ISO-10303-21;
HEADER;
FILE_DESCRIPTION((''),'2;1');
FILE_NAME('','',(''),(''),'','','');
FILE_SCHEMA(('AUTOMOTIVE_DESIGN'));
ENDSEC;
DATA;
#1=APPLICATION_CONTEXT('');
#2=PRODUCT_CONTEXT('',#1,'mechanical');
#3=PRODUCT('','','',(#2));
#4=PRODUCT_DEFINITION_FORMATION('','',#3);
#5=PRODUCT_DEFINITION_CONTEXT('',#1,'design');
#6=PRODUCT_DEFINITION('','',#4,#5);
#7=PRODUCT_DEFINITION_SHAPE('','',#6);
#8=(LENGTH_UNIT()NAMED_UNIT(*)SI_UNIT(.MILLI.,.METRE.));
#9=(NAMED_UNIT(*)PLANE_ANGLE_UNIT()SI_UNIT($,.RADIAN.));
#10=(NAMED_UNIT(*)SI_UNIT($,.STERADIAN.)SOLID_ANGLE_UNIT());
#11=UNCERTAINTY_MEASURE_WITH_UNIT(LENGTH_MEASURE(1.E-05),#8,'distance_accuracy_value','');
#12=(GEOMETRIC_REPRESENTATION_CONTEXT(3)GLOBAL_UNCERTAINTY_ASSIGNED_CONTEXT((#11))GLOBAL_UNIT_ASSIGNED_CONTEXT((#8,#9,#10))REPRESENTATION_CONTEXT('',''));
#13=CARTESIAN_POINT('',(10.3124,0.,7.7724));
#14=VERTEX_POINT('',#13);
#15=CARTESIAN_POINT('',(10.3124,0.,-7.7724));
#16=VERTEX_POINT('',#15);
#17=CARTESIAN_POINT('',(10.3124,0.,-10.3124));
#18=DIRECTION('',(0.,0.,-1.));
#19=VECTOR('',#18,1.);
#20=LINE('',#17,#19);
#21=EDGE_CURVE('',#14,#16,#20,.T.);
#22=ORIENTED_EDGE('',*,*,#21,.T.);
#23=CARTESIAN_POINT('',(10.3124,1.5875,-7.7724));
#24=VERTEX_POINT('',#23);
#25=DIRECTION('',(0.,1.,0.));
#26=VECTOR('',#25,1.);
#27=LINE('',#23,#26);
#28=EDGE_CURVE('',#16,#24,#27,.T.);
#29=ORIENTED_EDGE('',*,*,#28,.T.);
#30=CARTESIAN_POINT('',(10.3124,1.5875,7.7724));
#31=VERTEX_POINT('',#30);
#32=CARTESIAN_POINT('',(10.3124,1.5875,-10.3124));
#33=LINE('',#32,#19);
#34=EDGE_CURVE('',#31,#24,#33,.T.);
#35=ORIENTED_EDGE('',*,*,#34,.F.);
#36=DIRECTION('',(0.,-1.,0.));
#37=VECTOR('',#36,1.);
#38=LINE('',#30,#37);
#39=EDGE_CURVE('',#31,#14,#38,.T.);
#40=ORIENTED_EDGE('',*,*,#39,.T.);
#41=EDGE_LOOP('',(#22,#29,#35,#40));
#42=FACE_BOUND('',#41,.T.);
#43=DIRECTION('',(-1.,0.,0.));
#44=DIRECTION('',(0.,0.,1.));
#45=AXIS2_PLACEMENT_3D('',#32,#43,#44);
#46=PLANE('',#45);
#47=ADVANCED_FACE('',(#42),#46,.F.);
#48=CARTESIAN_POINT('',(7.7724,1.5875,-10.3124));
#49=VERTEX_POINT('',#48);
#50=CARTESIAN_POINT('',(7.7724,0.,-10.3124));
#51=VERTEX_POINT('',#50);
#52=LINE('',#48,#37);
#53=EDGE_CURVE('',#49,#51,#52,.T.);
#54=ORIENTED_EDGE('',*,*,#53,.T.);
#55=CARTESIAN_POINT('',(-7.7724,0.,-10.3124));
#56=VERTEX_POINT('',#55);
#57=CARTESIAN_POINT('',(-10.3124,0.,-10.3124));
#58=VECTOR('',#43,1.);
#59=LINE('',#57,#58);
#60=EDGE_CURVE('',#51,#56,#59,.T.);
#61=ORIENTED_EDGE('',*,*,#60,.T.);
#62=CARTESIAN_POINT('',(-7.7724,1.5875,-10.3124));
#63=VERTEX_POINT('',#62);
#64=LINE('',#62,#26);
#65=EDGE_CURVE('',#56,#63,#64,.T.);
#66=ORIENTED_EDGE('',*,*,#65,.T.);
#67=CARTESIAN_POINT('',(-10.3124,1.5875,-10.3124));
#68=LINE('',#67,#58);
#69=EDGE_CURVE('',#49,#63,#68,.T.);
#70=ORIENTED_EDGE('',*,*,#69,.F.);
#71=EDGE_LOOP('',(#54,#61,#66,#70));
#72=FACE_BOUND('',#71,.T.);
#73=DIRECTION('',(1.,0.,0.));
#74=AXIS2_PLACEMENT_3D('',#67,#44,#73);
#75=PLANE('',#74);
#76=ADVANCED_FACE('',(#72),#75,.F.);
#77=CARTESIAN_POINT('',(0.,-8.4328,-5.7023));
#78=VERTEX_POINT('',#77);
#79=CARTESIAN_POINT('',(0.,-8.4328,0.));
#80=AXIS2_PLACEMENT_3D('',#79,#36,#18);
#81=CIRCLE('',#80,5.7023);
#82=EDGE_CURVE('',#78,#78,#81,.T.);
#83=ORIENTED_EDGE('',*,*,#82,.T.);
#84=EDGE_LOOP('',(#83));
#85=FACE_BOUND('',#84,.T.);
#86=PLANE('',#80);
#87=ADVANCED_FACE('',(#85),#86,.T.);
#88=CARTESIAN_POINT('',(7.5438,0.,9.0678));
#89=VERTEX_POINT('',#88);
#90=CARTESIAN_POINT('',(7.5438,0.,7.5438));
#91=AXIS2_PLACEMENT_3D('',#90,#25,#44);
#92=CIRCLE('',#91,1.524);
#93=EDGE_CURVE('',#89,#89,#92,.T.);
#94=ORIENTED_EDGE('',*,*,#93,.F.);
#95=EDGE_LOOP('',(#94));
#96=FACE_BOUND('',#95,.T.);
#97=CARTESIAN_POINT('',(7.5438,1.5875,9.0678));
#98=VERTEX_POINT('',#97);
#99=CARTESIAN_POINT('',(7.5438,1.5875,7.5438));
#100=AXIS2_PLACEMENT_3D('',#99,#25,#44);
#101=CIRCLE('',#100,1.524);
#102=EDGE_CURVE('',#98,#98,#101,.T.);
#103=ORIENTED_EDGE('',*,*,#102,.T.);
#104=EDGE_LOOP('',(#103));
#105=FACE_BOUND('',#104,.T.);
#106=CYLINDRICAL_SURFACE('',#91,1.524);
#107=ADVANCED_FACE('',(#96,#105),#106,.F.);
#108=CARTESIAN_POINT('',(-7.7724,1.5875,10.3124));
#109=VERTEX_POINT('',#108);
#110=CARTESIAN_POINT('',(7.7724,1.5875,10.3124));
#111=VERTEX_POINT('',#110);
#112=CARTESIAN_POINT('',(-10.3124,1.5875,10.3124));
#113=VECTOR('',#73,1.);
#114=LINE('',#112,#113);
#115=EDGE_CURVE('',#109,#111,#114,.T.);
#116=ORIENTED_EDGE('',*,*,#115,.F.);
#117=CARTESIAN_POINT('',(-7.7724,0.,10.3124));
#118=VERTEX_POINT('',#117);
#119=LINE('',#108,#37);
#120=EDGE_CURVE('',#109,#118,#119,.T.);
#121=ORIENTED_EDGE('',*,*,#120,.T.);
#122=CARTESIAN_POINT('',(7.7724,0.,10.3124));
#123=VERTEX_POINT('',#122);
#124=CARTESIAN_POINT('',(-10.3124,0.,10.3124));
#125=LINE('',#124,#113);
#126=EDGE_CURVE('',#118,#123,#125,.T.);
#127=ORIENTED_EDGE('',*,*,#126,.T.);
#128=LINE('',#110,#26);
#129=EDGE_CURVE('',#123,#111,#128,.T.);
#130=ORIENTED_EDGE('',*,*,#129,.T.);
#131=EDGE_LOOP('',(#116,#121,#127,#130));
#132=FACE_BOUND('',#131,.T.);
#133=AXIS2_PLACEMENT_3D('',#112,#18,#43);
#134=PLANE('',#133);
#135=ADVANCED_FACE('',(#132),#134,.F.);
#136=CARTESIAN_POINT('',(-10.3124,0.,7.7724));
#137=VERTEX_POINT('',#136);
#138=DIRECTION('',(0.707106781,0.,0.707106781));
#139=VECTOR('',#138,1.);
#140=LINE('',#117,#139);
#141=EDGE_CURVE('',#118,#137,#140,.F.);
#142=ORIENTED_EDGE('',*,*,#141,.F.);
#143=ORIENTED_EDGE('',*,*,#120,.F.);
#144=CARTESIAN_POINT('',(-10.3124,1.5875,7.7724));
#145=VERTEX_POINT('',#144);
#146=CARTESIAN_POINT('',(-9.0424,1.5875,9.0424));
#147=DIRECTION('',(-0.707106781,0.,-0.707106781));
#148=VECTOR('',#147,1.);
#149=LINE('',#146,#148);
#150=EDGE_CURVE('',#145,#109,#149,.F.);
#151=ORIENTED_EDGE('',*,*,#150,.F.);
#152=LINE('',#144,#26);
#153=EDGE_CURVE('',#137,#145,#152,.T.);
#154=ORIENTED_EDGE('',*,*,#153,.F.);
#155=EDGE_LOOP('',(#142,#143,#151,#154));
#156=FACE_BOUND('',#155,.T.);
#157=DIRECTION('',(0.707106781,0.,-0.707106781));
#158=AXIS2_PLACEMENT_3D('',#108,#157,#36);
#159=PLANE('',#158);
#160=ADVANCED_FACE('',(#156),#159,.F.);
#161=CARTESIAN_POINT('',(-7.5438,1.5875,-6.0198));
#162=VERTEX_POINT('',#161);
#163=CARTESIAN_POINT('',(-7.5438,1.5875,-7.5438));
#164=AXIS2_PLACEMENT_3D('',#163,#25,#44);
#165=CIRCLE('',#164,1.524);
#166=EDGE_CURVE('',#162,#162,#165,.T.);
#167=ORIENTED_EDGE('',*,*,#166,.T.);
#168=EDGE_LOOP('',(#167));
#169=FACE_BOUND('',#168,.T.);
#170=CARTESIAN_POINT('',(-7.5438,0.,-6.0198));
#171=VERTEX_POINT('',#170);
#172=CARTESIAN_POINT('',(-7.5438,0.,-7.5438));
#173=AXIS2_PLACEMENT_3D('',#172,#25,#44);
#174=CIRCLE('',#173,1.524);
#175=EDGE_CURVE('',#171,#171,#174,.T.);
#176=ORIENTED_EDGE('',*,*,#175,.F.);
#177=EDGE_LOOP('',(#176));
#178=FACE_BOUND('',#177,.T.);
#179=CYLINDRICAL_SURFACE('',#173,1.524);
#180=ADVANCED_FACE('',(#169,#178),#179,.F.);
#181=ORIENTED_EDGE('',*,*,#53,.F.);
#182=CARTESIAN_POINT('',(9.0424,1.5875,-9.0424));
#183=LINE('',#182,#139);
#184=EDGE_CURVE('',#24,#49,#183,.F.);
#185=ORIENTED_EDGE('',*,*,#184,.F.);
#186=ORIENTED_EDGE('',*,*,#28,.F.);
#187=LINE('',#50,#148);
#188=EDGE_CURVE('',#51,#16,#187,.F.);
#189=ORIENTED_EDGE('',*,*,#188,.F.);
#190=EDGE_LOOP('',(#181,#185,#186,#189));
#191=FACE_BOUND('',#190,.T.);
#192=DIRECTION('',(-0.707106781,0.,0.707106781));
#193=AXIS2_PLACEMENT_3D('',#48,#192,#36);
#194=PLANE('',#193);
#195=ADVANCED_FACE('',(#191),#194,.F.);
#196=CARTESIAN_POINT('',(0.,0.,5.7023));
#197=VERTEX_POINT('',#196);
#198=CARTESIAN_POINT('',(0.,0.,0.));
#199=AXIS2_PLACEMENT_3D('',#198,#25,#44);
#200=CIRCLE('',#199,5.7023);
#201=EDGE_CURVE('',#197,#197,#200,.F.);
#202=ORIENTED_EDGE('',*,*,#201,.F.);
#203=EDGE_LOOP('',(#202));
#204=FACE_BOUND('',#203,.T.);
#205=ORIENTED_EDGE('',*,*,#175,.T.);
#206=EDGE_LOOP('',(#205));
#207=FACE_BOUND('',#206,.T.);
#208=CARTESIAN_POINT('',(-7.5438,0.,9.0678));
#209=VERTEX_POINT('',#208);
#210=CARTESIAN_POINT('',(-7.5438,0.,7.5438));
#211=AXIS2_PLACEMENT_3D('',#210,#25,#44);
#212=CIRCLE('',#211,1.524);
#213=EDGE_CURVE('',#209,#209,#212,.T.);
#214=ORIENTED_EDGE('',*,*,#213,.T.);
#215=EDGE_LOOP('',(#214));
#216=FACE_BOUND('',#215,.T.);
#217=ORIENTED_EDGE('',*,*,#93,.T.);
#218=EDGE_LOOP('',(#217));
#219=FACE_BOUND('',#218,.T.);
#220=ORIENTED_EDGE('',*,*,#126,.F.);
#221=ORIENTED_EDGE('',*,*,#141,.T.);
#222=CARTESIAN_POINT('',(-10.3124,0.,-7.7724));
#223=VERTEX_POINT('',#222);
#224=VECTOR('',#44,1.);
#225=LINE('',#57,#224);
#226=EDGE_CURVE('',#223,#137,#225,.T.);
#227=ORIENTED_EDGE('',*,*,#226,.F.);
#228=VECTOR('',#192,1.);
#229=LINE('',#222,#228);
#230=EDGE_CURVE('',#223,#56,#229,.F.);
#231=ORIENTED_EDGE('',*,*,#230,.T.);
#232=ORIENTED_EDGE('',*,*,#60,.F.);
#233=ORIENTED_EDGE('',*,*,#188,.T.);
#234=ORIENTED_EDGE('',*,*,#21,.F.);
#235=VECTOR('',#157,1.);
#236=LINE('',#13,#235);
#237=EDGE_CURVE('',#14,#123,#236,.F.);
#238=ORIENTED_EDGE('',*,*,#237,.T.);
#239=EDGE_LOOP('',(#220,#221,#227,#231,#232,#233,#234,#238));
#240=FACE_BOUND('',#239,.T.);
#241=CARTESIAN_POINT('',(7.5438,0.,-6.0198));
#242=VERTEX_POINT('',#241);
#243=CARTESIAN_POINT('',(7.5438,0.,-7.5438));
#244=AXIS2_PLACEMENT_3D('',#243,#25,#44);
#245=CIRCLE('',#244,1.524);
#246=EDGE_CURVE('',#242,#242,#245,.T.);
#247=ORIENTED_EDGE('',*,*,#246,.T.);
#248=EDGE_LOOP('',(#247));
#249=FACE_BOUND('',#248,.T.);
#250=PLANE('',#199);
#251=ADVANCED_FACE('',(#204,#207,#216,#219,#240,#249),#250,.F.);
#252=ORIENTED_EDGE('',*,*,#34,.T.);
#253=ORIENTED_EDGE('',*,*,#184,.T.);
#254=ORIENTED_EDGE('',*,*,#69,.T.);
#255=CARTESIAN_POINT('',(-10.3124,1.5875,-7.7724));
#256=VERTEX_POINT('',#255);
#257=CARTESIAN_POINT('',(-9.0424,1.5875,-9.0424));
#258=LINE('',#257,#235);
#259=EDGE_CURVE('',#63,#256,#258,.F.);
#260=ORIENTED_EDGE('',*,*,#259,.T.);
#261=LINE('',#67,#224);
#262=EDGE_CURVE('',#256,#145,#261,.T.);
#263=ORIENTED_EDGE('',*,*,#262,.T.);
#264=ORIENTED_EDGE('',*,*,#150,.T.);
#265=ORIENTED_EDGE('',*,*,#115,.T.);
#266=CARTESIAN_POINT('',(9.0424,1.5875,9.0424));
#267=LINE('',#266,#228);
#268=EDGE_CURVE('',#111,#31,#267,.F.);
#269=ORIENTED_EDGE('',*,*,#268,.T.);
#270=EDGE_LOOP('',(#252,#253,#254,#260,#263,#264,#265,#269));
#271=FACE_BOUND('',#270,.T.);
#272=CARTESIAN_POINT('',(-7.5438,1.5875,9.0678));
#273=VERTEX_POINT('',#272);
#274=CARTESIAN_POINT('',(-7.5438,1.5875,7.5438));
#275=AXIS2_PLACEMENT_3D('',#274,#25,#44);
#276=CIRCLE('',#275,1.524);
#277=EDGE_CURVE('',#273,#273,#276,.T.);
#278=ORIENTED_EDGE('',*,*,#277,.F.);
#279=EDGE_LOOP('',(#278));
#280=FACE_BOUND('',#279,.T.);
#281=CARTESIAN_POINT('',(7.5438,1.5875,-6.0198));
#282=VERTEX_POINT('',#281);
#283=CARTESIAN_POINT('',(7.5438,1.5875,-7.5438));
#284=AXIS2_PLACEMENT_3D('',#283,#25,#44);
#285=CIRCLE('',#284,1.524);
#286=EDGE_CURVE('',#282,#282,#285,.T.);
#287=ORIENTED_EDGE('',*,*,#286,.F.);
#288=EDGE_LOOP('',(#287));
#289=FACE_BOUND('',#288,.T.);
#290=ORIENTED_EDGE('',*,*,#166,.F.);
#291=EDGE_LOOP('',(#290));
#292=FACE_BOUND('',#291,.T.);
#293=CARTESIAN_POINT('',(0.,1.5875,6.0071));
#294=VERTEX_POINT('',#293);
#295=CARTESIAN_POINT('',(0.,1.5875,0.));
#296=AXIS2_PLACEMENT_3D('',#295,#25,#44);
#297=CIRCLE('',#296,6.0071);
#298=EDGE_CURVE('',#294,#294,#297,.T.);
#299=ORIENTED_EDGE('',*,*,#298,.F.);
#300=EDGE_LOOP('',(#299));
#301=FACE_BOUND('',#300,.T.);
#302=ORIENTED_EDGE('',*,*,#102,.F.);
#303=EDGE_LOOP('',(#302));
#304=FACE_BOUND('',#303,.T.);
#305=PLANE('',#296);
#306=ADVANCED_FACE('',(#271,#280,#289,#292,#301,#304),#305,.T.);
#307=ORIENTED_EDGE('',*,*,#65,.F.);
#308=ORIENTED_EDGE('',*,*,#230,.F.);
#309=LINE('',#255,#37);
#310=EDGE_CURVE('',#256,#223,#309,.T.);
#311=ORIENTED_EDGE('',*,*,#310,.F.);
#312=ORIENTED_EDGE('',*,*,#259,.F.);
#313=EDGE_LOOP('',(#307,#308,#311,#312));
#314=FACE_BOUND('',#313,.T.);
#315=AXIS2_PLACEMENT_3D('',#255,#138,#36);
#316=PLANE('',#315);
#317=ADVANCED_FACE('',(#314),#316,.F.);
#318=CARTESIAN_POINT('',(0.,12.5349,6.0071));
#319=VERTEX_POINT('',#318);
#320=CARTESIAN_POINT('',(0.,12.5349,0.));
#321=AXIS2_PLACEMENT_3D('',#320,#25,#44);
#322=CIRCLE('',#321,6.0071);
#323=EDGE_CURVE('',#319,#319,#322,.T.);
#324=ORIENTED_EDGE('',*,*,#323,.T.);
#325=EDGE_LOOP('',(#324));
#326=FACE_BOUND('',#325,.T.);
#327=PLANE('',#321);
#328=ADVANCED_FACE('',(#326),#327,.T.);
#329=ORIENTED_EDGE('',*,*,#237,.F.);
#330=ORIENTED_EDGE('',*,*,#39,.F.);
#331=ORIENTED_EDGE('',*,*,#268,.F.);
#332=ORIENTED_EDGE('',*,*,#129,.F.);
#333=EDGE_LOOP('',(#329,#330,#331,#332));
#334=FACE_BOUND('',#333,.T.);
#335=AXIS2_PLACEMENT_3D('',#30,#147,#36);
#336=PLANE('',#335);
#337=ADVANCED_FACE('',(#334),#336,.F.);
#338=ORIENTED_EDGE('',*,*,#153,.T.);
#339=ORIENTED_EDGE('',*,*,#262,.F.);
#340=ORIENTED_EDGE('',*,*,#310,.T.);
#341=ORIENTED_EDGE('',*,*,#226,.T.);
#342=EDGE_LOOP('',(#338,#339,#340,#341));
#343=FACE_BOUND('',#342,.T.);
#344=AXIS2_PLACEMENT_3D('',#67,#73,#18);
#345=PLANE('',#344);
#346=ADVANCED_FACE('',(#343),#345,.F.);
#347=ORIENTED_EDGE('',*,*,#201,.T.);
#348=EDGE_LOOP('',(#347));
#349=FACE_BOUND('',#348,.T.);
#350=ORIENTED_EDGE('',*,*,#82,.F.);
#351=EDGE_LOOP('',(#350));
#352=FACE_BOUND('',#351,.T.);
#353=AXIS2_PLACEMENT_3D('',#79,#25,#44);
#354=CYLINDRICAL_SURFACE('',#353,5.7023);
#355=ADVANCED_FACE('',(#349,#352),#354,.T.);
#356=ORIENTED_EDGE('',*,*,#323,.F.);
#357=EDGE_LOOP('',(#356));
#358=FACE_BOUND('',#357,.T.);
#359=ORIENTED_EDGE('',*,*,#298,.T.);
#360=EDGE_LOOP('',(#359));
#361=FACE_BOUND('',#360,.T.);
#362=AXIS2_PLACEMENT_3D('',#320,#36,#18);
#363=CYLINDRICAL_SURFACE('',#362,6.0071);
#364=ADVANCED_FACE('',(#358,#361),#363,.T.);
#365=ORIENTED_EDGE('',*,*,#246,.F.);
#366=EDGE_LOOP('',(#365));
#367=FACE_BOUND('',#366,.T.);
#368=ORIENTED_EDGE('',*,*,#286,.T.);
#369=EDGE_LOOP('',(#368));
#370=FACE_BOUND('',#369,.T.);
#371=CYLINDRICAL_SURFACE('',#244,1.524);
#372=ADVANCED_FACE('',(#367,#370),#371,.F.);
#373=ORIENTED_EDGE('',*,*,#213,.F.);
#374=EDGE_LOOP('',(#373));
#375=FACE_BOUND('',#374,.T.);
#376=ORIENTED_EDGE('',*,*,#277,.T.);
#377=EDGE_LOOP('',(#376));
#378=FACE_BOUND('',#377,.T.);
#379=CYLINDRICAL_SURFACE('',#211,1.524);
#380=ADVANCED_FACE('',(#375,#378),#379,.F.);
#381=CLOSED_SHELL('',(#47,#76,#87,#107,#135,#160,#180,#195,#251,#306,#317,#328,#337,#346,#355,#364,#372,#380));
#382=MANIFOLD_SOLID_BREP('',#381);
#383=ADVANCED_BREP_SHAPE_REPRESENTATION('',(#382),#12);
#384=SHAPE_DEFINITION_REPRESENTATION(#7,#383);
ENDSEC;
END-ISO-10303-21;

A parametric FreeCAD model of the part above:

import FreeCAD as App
import Part
import Sketcher
from FreeCAD import Vector
Q = App.Units.Quantity


def edges_at(feature, points):
    """Names of the edges that pass closest to the given points."""
    edges = feature.Shape.Edges
    near = lambda p: min(range(len(edges)), key=lambda i: edges[i].distToShape(Part.Vertex(*p))[0])
    return sorted({f"Edge{near(p) + 1}" for p in points})

doc = App.newDocument("Part")
body = doc.addObject("PartDesign::Body", "Body")

# Sketch on XZ plane
sketch1 = body.newObject("Sketcher::SketchObject", "Sketch")
sketch1.AttachmentSupport = (doc.getObject("XZ_Plane"), [""])
sketch1.MapMode = "FlatFace"
sketch1.addGeometry([
    Part.LineSegment(Vector(-10, -10, 0), Vector(-10, 10, 0)),
    Part.LineSegment(Vector(-10, 10, 0), Vector(10, 10, 0)),
    Part.LineSegment(Vector(10, 10, 0), Vector(10, -10, 0)),
    Part.LineSegment(Vector(10, -10, 0), Vector(-10, -10, 0)),
], False)
sketch1.addConstraint([
    Sketcher.Constraint("Coincident", 0, 2, 1, 1),
    Sketcher.Constraint("Coincident", 1, 2, 2, 1),
    Sketcher.Constraint("Coincident", 2, 2, 3, 1),
    Sketcher.Constraint("Coincident", 3, 2, 0, 1),
    Sketcher.Constraint("Vertical", 0),
    Sketcher.Constraint("Horizontal", 1),
    Sketcher.Constraint("Vertical", 2),
    Sketcher.Constraint("Horizontal", 3),
    Sketcher.Constraint("Symmetric", 0, 2, 2, 2, -1, 1),
    Sketcher.Constraint("Equal", 3, 0),
    Sketcher.Constraint("DistanceX", 1, 1, 1, 2, Q("0.812 in")),
])
pad1 = body.newObject("PartDesign::Pad", "Pad")
pad1.Profile = sketch1
pad1.Length = Q("0.0625 in")
pad1.Reversed = True
doc.recompute()

chamfer = body.newObject("PartDesign::Chamfer", "Chamfer")
chamfer.Base = (pad1, edges_at(pad1, [
    (10.312, 0.794, 10.312),
    (-10.312, 0.794, 10.312),
    (-10.312, 0.794, -10.312),
    (10.312, 0.794, -10.312),
]))
chamfer.Size = Q("0.1 in")

# Sketch on XZ plane
sketch2 = body.newObject("Sketcher::SketchObject", "Sketch001")
sketch2.AttachmentSupport = (doc.getObject("XZ_Plane"), [""])
sketch2.MapMode = "FlatFace"
sketch2.AttachmentOffset = App.Placement(Vector(0, 0, -0.0625 * 25.4), App.Rotation())
sketch2.addGeometry([
    Part.Circle(Vector(-7.5, -7.5, 0), Vector(0, 0, 1), 1.5),
    Part.Circle(Vector(7.5, -7.5, 0), Vector(0, 0, 1), 1.5),
    Part.Circle(Vector(7.5, 7.5, 0), Vector(0, 0, 1), 1.5),
    Part.Circle(Vector(-7.5, 7.5, 0), Vector(0, 0, 1), 1.5),
], False)
sketch2.addConstraint([
    Sketcher.Constraint("Equal", 0, 1),
    Sketcher.Constraint("Equal", 1, 2),
    Sketcher.Constraint("Equal", 2, 3),
    Sketcher.Constraint("Symmetric", 0, 3, 2, 3, -1, 1),
    Sketcher.Constraint("Symmetric", 1, 3, 3, 3, -1, 1),
    Sketcher.Constraint("Symmetric", 0, 3, 1, 3, -2),
    Sketcher.Constraint("Diameter", 0, Q("0.12 in")),
    Sketcher.Constraint("DistanceX", 0, 3, -1, 1, Q("0.297 in")),
    Sketcher.Constraint("DistanceY", 0, 3, -1, 1, Q("0.297 in")),
])
pocket1 = body.newObject("PartDesign::Pocket", "Pocket")
pocket1.Profile = sketch2
pocket1.Type = "ThroughAll"
pocket1.Reversed = True

# Sketch on XZ plane
sketch3 = body.newObject("Sketcher::SketchObject", "Sketch002")
sketch3.AttachmentSupport = (doc.getObject("XZ_Plane"), [""])
sketch3.MapMode = "FlatFace"
sketch3.AttachmentOffset = App.Placement(Vector(0, 0, -0.0625 * 25.4), App.Rotation())
sketch3.addGeometry(Part.Circle(Vector(0, 0, 0), Vector(0, 0, 1), 6), False)
sketch3.addConstraint([
    Sketcher.Constraint("Coincident", 0, 3, -1, 1),
    Sketcher.Constraint("Diameter", 0, Q("0.473 in")),
])
pad2 = body.newObject("PartDesign::Pad", "Pad001")
pad2.Profile = sketch3
pad2.Length = Q("0.431 in")
pad2.Reversed = True

# Sketch on XZ plane
sketch4 = body.newObject("Sketcher::SketchObject", "Sketch003")
sketch4.AttachmentSupport = (doc.getObject("XZ_Plane"), [""])
sketch4.MapMode = "FlatFace"
sketch4.addGeometry(Part.Circle(Vector(0, 0, 0), Vector(0, 0, 1), 6), False)
sketch4.addConstraint([
    Sketcher.Constraint("Coincident", 0, 3, -1, 1),
    Sketcher.Constraint("Diameter", 0, Q("0.449 in")),
])
pad3 = body.newObject("PartDesign::Pad", "Pad002")
pad3.Profile = sketch4
pad3.Length = Q("0.332 in")

doc.recompute()
